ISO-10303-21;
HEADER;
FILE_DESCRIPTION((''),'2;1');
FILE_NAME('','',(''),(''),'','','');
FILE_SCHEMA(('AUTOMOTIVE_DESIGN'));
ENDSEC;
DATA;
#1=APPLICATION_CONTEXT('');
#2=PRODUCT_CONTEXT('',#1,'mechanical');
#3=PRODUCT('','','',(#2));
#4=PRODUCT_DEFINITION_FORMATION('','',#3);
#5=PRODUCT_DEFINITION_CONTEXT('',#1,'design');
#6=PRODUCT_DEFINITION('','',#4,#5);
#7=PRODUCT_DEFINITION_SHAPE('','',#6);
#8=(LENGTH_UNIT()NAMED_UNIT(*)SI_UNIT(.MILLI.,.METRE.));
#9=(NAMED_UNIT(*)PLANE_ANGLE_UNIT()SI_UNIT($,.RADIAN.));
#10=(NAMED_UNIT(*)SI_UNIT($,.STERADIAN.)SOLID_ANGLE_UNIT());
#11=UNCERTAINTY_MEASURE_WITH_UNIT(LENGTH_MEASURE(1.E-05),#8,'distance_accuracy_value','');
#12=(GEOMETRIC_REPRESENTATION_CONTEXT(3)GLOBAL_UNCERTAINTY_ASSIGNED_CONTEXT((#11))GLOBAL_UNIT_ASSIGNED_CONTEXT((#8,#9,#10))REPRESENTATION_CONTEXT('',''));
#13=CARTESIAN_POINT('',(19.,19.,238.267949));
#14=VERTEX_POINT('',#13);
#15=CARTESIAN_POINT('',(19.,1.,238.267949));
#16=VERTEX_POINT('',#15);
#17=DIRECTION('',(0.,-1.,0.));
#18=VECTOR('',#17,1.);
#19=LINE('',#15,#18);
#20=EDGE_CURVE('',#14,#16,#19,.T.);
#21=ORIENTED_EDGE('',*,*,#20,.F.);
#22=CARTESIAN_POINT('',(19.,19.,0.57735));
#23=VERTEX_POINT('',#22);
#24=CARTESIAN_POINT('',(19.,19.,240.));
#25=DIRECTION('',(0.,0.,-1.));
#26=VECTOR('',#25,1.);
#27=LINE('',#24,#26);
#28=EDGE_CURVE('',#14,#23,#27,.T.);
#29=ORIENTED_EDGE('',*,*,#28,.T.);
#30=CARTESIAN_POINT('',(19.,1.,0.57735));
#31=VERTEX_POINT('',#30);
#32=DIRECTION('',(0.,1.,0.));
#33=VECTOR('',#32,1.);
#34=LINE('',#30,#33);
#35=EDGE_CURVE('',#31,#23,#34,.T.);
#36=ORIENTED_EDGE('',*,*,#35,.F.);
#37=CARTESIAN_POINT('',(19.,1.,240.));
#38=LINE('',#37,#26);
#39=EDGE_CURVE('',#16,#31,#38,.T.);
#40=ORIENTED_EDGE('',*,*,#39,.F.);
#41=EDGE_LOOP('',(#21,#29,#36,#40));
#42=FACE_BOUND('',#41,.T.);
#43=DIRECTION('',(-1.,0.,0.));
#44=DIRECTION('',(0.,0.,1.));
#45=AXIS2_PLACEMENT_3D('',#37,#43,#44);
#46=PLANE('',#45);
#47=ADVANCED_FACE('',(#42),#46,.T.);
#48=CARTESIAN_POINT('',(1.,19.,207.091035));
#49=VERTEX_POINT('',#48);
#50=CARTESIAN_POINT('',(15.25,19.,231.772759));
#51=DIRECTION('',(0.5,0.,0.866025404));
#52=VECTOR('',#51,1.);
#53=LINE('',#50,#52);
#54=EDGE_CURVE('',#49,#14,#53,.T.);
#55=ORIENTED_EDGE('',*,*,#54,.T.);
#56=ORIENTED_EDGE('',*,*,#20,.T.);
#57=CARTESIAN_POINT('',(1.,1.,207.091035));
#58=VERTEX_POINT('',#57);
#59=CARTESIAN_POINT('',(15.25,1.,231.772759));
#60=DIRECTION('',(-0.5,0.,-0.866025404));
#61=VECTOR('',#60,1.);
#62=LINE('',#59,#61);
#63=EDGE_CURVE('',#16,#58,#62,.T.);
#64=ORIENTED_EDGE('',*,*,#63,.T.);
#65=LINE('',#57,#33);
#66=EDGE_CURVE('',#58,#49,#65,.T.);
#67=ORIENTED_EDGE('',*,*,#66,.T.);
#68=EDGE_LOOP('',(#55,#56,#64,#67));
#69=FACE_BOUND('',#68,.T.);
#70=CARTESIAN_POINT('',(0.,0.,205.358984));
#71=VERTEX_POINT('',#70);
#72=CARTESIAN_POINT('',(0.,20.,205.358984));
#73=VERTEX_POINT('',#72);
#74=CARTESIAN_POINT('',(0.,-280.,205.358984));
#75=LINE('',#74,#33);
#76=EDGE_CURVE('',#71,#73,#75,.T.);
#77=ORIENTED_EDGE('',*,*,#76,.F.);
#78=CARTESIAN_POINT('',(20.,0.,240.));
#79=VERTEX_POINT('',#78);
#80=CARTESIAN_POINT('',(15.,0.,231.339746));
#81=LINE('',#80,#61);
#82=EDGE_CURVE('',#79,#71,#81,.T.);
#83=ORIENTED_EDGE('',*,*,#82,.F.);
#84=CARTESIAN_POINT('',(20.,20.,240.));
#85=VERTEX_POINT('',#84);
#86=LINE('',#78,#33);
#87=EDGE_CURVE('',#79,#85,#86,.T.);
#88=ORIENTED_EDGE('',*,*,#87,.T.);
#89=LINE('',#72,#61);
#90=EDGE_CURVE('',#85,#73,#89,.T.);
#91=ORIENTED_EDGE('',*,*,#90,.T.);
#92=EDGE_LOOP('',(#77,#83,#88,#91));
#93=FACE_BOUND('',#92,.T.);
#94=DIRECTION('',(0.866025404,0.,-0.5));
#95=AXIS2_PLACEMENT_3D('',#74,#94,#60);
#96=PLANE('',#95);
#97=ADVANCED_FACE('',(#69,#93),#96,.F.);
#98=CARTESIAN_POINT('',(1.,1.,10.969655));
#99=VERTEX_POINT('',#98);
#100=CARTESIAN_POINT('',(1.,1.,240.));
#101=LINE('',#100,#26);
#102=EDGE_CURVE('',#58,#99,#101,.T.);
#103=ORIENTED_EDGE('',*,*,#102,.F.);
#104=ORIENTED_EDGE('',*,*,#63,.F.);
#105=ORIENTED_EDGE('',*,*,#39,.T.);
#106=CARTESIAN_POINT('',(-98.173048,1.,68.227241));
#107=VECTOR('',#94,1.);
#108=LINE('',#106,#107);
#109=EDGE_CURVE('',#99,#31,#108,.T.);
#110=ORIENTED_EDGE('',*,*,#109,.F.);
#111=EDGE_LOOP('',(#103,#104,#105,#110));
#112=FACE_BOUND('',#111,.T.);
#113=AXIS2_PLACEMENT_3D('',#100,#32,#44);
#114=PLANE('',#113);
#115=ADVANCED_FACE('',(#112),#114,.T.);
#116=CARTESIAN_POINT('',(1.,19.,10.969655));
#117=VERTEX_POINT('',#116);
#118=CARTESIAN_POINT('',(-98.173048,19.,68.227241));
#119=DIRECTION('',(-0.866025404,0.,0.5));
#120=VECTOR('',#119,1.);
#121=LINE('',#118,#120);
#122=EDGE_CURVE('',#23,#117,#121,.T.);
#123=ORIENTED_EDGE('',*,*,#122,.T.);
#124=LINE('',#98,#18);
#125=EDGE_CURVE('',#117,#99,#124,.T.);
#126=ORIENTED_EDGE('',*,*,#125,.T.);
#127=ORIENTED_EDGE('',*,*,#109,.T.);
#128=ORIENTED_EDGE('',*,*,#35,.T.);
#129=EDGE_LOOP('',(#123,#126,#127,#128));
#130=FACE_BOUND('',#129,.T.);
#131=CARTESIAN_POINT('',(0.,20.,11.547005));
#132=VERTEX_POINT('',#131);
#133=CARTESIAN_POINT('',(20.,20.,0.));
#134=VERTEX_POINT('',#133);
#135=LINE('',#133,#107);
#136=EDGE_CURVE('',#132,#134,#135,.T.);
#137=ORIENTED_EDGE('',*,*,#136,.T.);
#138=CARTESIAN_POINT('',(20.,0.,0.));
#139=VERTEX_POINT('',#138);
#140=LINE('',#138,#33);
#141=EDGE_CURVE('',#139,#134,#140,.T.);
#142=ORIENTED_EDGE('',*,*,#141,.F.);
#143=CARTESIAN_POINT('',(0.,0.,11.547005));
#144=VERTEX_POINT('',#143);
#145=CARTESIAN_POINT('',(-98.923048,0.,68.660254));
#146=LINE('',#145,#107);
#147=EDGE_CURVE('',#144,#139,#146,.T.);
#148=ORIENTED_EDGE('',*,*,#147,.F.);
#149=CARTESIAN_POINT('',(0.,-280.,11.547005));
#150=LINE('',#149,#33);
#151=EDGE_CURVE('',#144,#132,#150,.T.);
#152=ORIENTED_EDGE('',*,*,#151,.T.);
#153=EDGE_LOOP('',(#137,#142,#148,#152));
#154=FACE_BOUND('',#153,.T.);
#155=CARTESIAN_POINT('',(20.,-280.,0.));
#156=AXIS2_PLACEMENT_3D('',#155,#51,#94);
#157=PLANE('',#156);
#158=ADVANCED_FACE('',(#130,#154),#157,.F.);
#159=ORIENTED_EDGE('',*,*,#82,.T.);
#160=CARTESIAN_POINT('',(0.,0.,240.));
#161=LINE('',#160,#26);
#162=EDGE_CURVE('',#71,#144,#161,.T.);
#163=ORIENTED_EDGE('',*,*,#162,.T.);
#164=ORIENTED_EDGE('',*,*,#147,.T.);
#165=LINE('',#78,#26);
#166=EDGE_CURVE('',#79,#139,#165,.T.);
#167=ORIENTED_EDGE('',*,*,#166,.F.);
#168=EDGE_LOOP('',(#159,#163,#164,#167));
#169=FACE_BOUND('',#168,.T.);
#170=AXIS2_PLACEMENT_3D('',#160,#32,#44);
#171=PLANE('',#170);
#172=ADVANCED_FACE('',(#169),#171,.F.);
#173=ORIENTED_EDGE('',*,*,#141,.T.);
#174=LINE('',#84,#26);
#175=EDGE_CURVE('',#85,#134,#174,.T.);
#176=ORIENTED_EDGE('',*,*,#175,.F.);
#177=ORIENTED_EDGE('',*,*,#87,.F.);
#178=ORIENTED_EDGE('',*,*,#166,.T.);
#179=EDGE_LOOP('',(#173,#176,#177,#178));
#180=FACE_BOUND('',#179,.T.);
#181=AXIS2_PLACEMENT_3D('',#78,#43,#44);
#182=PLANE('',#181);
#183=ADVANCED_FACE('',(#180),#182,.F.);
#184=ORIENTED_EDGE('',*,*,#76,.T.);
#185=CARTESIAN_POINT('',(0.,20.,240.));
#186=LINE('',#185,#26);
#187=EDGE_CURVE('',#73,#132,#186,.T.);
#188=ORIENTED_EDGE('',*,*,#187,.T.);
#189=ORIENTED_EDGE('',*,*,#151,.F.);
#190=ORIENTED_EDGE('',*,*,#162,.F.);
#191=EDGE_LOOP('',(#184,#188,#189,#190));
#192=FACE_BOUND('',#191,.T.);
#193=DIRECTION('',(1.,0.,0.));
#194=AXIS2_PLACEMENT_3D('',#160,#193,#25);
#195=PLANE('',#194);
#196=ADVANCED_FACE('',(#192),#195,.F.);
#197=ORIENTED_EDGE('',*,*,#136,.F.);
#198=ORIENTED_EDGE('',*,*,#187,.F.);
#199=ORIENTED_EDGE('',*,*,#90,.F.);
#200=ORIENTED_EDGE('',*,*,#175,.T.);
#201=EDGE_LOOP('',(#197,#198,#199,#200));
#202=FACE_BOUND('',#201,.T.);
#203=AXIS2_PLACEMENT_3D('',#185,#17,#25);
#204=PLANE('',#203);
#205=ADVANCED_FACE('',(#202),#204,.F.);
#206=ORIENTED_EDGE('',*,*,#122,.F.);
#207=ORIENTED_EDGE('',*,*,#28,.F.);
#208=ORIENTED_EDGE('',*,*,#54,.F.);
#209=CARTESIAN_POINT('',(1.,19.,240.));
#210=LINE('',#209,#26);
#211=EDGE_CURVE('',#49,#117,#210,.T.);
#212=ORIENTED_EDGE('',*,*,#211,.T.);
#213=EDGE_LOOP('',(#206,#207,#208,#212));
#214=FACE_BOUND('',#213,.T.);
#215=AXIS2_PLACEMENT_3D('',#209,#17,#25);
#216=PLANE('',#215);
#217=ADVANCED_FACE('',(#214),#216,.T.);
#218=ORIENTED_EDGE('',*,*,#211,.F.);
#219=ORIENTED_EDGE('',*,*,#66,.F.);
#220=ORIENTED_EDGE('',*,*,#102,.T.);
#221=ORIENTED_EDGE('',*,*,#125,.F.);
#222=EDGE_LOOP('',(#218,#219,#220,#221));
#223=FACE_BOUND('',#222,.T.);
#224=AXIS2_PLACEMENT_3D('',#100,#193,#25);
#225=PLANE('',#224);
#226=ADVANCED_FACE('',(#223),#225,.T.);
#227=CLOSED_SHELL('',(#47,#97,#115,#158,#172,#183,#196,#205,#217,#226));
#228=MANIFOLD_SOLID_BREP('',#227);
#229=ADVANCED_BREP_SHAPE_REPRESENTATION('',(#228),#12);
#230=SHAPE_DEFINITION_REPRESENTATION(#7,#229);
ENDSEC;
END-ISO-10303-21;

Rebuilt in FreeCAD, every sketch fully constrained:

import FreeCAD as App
import Part
import Sketcher
from FreeCAD import Vector
Q = App.Units.Quantity

doc = App.newDocument("Part")
params = doc.addObject("Spreadsheet::Sheet", "Params")
for row, (alias, value) in enumerate([
    ("sketch1_width", "20 mm"),
    ("sketch1_width2", "18 mm"),
    ("pad1_length", "240 mm"),
    ("sketch2_width", "20 mm"),
    ("pocket1_length", "300 mm"),
], start=1):
    params.set(f"A{row}", alias)
    params.set(f"B{row}", "=" + value)
    params.setAlias(f"B{row}", alias)

body = doc.addObject("PartDesign::Body", "Body")

sketch1 = body.newObject("Sketcher::SketchObject", "Sketch")
sketch1.AttachmentSupport = (doc.getObject("XY_Plane"), [""])
sketch1.MapMode = "FlatFace"
sketch1.addGeometry([
    Part.LineSegment(Vector(0, 20, 0), Vector(0, 0, 0)),
    Part.LineSegment(Vector(0, 0, 0), Vector(20, 0, 0)),
    Part.LineSegment(Vector(20, 0, 0), Vector(20, 20, 0)),
    Part.LineSegment(Vector(20, 20, 0), Vector(0, 20, 0)),
    Part.LineSegment(Vector(19, 1, 0), Vector(1, 1, 0)),
    Part.LineSegment(Vector(1, 1, 0), Vector(1, 19, 0)),
    Part.LineSegment(Vector(1, 19, 0), Vector(19, 19, 0)),
    Part.LineSegment(Vector(19, 19, 0), Vector(19, 1, 0)),
], False)
sketch1.addConstraint([
    Sketcher.Constraint("Coincident", 0, 2, 1, 1),
    Sketcher.Constraint("Coincident", 1, 2, 2, 1),
    Sketcher.Constraint("Coincident", 2, 2, 3, 1),
    Sketcher.Constraint("Coincident", 3, 2, 0, 1),
    Sketcher.Constraint("Coincident", 4, 2, 5, 1),
    Sketcher.Constraint("Coincident", 5, 2, 6, 1),
    Sketcher.Constraint("Coincident", 6, 2, 7, 1),
    Sketcher.Constraint("Coincident", 7, 2, 4, 1),
    Sketcher.Constraint("Vertical", 0),
    Sketcher.Constraint("Horizontal", 1),
    Sketcher.Constraint("Vertical", 2),
    Sketcher.Constraint("Horizontal", 3),
    Sketcher.Constraint("Horizontal", 4),
    Sketcher.Constraint("Vertical", 5),
    Sketcher.Constraint("Horizontal", 6),
    Sketcher.Constraint("Vertical", 7),
    Sketcher.Constraint("Coincident", 0, 2, -1, 1),
    Sketcher.Constraint("Equal", 3, 0),
    Sketcher.Constraint("Equal", 6, 5),
    Sketcher.Constraint("DistanceX", 1, 1, 1, 2, Q("20 mm")),
    Sketcher.Constraint("DistanceX", 4, 2, 4, 1, Q("18 mm")),
    Sketcher.Constraint("DistanceX", -1, 1, 4, 2, Q("1 mm")),
    Sketcher.Constraint("DistanceY", -1, 1, 4, 2, Q("1 mm")),
])
sketch1.setExpression("Constraints[19]", "Params.sketch1_width")
sketch1.setExpression("Constraints[20]", "Params.sketch1_width2")
pad1 = body.newObject("PartDesign::Pad", "Pad")
pad1.Profile = sketch1
pad1.setExpression("Length", "Params.pad1_length")

sketch2 = body.newObject("Sketcher::SketchObject", "Sketch001")
sketch2.AttachmentSupport = (doc.getObject("XZ_Plane"), [""])
sketch2.MapMode = "FlatFace"
sketch2.AttachmentOffset = App.Placement(Vector(0, 0, -20), App.Rotation())
sketch2.addGeometry([
    Part.LineSegment(Vector(0, 11.547005, 0), Vector(20, 0, 0)),
    Part.LineSegment(Vector(20, 0, 0), Vector(0, 0, 0)),
    Part.LineSegment(Vector(0, 0, 0), Vector(0, 11.547005, 0)),
    Part.LineSegment(Vector(20, 240, 0), Vector(0, 205.358984, 0)),
    Part.LineSegment(Vector(0, 205.358984, 0), Vector(0, 240, 0)),
    Part.LineSegment(Vector(0, 240, 0), Vector(20, 240, 0)),
], False)
sketch2.addConstraint([
    Sketcher.Constraint("Coincident", 0, 2, 1, 1),
    Sketcher.Constraint("Coincident", 1, 2, 2, 1),
    Sketcher.Constraint("Coincident", 2, 2, 0, 1),
    Sketcher.Constraint("Coincident", 3, 2, 4, 1),
    Sketcher.Constraint("Coincident", 4, 2, 5, 1),
    Sketcher.Constraint("Coincident", 5, 2, 3, 1),
    Sketcher.Constraint("Horizontal", 1),
    Sketcher.Constraint("Vertical", 2),
    Sketcher.Constraint("Vertical", 4),
    Sketcher.Constraint("Horizontal", 5),
    Sketcher.Constraint("Coincident", 1, 2, -1, 1),
    Sketcher.Constraint("PointOnObject", 3, 2, -2),
    Sketcher.Constraint("Perpendicular", 0, 3),
    Sketcher.Constraint("Vertical", 0, 2, 5, 2),
    Sketcher.Constraint("DistanceX", 1, 2, 1, 1, Q("20 mm")),
    Sketcher.Constraint("Angle", 0, Q("-30 deg")),
    Sketcher.Constraint("DistanceY", -1, 1, 4, 2, Q("240 mm")),
])
sketch2.setExpression("Constraints[14]", "Params.sketch2_width")
pocket1 = body.newObject("PartDesign::Pocket", "Pocket")
pocket1.Profile = sketch2
pocket1.setExpression("Length", "Params.pocket1_length")
pocket1.Reversed = True

doc.recompute()
